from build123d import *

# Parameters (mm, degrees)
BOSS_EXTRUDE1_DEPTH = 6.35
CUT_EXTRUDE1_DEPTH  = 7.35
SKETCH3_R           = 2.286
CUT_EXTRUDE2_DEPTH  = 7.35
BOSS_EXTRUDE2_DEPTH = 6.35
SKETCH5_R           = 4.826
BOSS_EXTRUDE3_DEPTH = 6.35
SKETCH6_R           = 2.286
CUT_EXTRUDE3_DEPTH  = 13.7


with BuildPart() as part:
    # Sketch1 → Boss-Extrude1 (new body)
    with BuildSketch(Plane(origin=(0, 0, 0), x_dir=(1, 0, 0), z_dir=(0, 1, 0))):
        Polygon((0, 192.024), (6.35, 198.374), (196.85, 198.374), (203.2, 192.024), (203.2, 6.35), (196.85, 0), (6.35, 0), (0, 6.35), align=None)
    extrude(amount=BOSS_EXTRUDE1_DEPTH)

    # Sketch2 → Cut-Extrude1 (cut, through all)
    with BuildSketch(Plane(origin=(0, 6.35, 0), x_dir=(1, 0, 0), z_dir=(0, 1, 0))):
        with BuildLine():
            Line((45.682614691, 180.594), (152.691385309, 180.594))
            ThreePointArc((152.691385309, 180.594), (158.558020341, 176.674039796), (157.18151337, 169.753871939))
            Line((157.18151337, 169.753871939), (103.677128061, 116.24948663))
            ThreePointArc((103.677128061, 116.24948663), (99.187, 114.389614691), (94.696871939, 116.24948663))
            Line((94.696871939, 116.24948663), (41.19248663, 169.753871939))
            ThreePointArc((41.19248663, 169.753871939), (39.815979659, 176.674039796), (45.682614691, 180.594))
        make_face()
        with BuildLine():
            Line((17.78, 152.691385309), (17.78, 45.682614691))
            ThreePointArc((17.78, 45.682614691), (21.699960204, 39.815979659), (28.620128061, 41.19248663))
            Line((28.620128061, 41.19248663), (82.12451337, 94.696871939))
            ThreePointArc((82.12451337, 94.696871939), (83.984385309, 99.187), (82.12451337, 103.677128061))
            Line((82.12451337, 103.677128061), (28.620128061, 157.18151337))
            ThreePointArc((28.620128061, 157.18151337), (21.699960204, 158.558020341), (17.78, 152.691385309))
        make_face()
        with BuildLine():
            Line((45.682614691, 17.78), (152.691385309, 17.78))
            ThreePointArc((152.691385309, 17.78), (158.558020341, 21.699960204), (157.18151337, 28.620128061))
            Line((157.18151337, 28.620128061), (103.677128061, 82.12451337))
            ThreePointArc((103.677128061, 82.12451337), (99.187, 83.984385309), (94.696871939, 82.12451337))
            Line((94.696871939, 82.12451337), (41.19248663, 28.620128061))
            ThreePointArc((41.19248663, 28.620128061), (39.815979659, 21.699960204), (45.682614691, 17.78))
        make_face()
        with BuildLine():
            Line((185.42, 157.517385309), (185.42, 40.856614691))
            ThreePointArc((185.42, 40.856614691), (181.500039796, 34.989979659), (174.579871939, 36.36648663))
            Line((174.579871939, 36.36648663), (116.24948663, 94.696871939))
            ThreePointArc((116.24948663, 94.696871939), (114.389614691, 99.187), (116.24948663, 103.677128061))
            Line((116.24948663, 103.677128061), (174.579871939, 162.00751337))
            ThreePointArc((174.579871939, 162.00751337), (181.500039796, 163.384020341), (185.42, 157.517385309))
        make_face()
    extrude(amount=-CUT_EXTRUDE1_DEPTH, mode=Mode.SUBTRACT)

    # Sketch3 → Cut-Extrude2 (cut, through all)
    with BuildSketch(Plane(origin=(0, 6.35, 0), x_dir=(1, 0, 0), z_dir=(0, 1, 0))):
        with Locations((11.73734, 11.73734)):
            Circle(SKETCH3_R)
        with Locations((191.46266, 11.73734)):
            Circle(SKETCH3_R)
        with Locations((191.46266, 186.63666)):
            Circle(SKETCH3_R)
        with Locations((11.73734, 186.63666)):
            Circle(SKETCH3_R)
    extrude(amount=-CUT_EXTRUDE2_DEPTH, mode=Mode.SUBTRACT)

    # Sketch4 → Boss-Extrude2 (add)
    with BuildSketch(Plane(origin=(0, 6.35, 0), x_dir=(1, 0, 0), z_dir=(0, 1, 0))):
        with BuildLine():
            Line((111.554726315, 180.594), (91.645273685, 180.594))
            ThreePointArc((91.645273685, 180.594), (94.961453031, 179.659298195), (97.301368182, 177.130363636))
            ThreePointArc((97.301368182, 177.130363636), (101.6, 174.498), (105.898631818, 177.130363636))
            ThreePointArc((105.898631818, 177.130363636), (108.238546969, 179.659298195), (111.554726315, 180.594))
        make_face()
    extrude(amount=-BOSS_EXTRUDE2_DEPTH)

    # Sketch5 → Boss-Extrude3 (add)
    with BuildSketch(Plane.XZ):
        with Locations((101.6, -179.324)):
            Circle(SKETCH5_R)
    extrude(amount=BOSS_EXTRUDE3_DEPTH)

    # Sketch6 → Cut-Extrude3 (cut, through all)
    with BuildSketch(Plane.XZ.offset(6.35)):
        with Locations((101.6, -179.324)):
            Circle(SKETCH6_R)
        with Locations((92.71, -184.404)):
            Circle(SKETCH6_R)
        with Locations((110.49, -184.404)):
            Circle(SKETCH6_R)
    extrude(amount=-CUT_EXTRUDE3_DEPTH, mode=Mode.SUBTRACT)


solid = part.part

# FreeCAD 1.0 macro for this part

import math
import FreeCAD as App
import Part
import Sketcher

V = App.Vector
Q = App.Units.Quantity


def add_polygon(sketch, points):
    """Adds a closed chain of lines whose ends are joined by coincident constraints."""
    first, n = sketch.GeometryCount, len(points)
    for a, b in zip(points, points[1:] + points[:1]):
        sketch.addGeometry(Part.LineSegment(App.Vector(*a, 0), App.Vector(*b, 0)), False)
    for i in range(n):
        sketch.addConstraint(Sketcher.Constraint("Coincident", first + i, 2, first + (i + 1) % n, 1))

doc = App.newDocument("Part")
body = doc.addObject("PartDesign::Body", "Body")

# Sketch on XZ plane
sketch1 = body.newObject("Sketcher::SketchObject", "Sketch")
sketch1.AttachmentSupport = (doc.getObject("XZ_Plane"), [""])
sketch1.MapMode = "FlatFace"
add_polygon(sketch1, [(6, -198), (0, -192), (0, -6), (6, 0), (197, 0), (203, -6), (203, -192), (197, -198)])  # lines 0-7
sketch1.addConstraint(Sketcher.Constraint("Vertical", 1))
sketch1.addConstraint(Sketcher.Constraint("Horizontal", 3))
sketch1.addConstraint(Sketcher.Constraint("Vertical", 5))
sketch1.addConstraint(Sketcher.Constraint("Horizontal", 7))
sketch1.addConstraint(Sketcher.Constraint("PointOnObject", 0, 2, -2))
sketch1.addConstraint(Sketcher.Constraint("PointOnObject", 2, 2, -1))
sketch1.addConstraint(Sketcher.Constraint("Perpendicular", 0, 2))
sketch1.addConstraint(Sketcher.Constraint("Perpendicular", 2, 4))
sketch1.addConstraint(Sketcher.Constraint("Perpendicular", 4, 6))
sketch1.addConstraint(Sketcher.Constraint("Horizontal", 1, 2, 4, 2))
sketch1.addConstraint(Sketcher.Constraint("Horizontal", 0, 2, 5, 2))
sketch1.addConstraint(Sketcher.Constraint("Vertical", 3, 2, 6, 2))
sketch1.addConstraint(Sketcher.Constraint("Vertical", 2, 2, 7, 2))
sketch1.addConstraint(Sketcher.Constraint("DistanceX", 3, 1, 3, 2, Q("7.5 in")))
sketch1.addConstraint(Sketcher.Constraint("DistanceX", -1, 1, 4, 2, Q("8 in")))
sketch1.addConstraint(Sketcher.Constraint("DistanceY", 1, 1, 1, 2, Q("7.31 in")))
pad1 = body.newObject("PartDesign::Pad", "Pad")
pad1.Profile = sketch1
pad1.Length = Q("0.25 in")
pad1.Reversed = True

# Sketch on XZ plane
sketch2 = body.newObject("Sketcher::SketchObject", "Sketch001")
sketch2.AttachmentSupport = (doc.getObject("XZ_Plane"), [""])
sketch2.MapMode = "FlatFace"
sketch2.AttachmentOffset = App.Placement(V(0, 0, -0.25 * 25.4), App.Rotation())
sketch2.addGeometry(Part.LineSegment(V(153, -181, 0), V(46, -181, 0)), False)
sketch2.addGeometry(Part.ArcOfCircle(Part.Circle(V(46, -174, 0), V(0, 0, 1), 6), math.radians(135), math.radians(270)), False)
sketch2.addGeometry(Part.LineSegment(V(41, -170, 0), V(95, -116, 0)), False)
sketch2.addGeometry(Part.ArcOfCircle(Part.Circle(V(99, -121, 0), V(0, 0, 1), 6), math.radians(45), math.radians(135)), False)
sketch2.addGeometry(Part.LineSegment(V(104, -116, 0), V(157, -170, 0)), False)
sketch2.addGeometry(Part.ArcOfCircle(Part.Circle(V(153, -174, 0), V(0, 0, 1), 6), math.radians(-90), math.radians(45)), False)
sketch2.addGeometry(Part.LineSegment(V(18, -153, 0), V(18, -46, 0)), False)
sketch2.addGeometry(Part.ArcOfCircle(Part.Circle(V(24, -46, 0), V(0, 0, 1), 6), math.radians(45), math.radians(180)), False)
sketch2.addGeometry(Part.LineSegment(V(29, -41, 0), V(82, -95, 0)), False)
sketch2.addGeometry(Part.ArcOfCircle(Part.Circle(V(78, -99, 0), V(0, 0, 1), 6), math.radians(-45), math.radians(45)), False)
sketch2.addGeometry(Part.LineSegment(V(82, -104, 0), V(29, -157, 0)), False)
sketch2.addGeometry(Part.ArcOfCircle(Part.Circle(V(24, -153, 0), V(0, 0, 1), 6), math.radians(180), math.radians(315)), False)
sketch2.addGeometry(Part.LineSegment(V(46, -18, 0), V(153, -18, 0)), False)
sketch2.addGeometry(Part.ArcOfCircle(Part.Circle(V(153, -24, 0), V(0, 0, 1), 6), math.radians(-45), math.radians(90)), False)
sketch2.addGeometry(Part.LineSegment(V(157, -29, 0), V(104, -82, 0)), False)
sketch2.addGeometry(Part.ArcOfCircle(Part.Circle(V(99, -78, 0), V(0, 0, 1), 6), math.radians(-135), math.radians(-45)), False)
sketch2.addGeometry(Part.LineSegment(V(95, -82, 0), V(41, -29, 0)), False)
sketch2.addGeometry(Part.ArcOfCircle(Part.Circle(V(46, -24, 0), V(0, 0, 1), 6), math.radians(90), math.radians(225)), False)
sketch2.addGeometry(Part.LineSegment(V(185, -41, 0), V(185, -158, 0)), False)
sketch2.addGeometry(Part.ArcOfCircle(Part.Circle(V(179, -158, 0), V(0, 0, 1), 6), math.radians(-135), math.radians(0)), False)
sketch2.addGeometry(Part.LineSegment(V(175, -162, 0), V(116, -104, 0)), False)
sketch2.addGeometry(Part.ArcOfCircle(Part.Circle(V(121, -99, 0), V(0, 0, 1), 6), math.radians(135), math.radians(225)), False)
sketch2.addGeometry(Part.LineSegment(V(116, -95, 0), V(175, -36, 0)), False)
sketch2.addGeometry(Part.ArcOfCircle(Part.Circle(V(179, -41, 0), V(0, 0, 1), 6), math.radians(0), math.radians(135)), False)
sketch2.addConstraint(Sketcher.Constraint("Tangent", 0, 2, 1, 2))
sketch2.addConstraint(Sketcher.Constraint("Tangent", 1, 1, 2, 1))
sketch2.addConstraint(Sketcher.Constraint("Tangent", 2, 2, 3, 2))
sketch2.addConstraint(Sketcher.Constraint("Tangent", 3, 1, 4, 1))
sketch2.addConstraint(Sketcher.Constraint("Tangent", 4, 2, 5, 2))
sketch2.addConstraint(Sketcher.Constraint("Tangent", 5, 1, 0, 1))
sketch2.addConstraint(Sketcher.Constraint("Tangent", 6, 2, 7, 2))
sketch2.addConstraint(Sketcher.Constraint("Tangent", 7, 1, 8, 1))
sketch2.addConstraint(Sketcher.Constraint("Tangent", 8, 2, 9, 2))
sketch2.addConstraint(Sketcher.Constraint("Tangent", 9, 1, 10, 1))
sketch2.addConstraint(Sketcher.Constraint("Tangent", 10, 2, 11, 2))
sketch2.addConstraint(Sketcher.Constraint("Tangent", 11, 1, 6, 1))
sketch2.addConstraint(Sketcher.Constraint("Tangent", 12, 2, 13, 2))
sketch2.addConstraint(Sketcher.Constraint("Tangent", 13, 1, 14, 1))
sketch2.addConstraint(Sketcher.Constraint("Tangent", 14, 2, 15, 2))
sketch2.addConstraint(Sketcher.Constraint("Tangent", 15, 1, 16, 1))
sketch2.addConstraint(Sketcher.Constraint("Tangent", 16, 2, 17, 2))
sketch2.addConstraint(Sketcher.Constraint("Tangent", 17, 1, 12, 1))
sketch2.addConstraint(Sketcher.Constraint("Tangent", 18, 2, 19, 2))
sketch2.addConstraint(Sketcher.Constraint("Tangent", 19, 1, 20, 1))
sketch2.addConstraint(Sketcher.Constraint("Tangent", 20, 2, 21, 2))
sketch2.addConstraint(Sketcher.Constraint("Tangent", 21, 1, 22, 1))
sketch2.addConstraint(Sketcher.Constraint("Tangent", 22, 2, 23, 2))
sketch2.addConstraint(Sketcher.Constraint("Tangent", 23, 1, 18, 1))
sketch2.addConstraint(Sketcher.Constraint("Horizontal", 0))
sketch2.addConstraint(Sketcher.Constraint("Vertical", 6))
sketch2.addConstraint(Sketcher.Constraint("Horizontal", 12))
sketch2.addConstraint(Sketcher.Constraint("Vertical", 18))
sketch2.addConstraint(Sketcher.Constraint("Equal", 1, 3))
sketch2.addConstraint(Sketcher.Constraint("Equal", 3, 5))
sketch2.addConstraint(Sketcher.Constraint("Equal", 5, 7))
sketch2.addConstraint(Sketcher.Constraint("Equal", 7, 9))
sketch2.addConstraint(Sketcher.Constraint("Equal", 9, 11))
sketch2.addConstraint(Sketcher.Constraint("Equal", 11, 13))
sketch2.addConstraint(Sketcher.Constraint("Equal", 13, 15))
sketch2.addConstraint(Sketcher.Constraint("Equal", 15, 17))
sketch2.addConstraint(Sketcher.Constraint("Equal", 17, 19))
sketch2.addConstraint(Sketcher.Constraint("Equal", 19, 21))
sketch2.addConstraint(Sketcher.Constraint("Equal", 21, 23))
sketch2.addConstraint(Sketcher.Constraint("Perpendicular", 2, 4))
sketch2.addConstraint(Sketcher.Constraint("Parallel", 4, 8))
sketch2.addConstraint(Sketcher.Constraint("Perpendicular", 8, 10))
sketch2.addConstraint(Sketcher.Constraint("Parallel", 10, 14))
sketch2.addConstraint(Sketcher.Constraint("Perpendicular", 14, 16))
sketch2.addConstraint(Sketcher.Constraint("Parallel", 16, 20))
sketch2.addConstraint(Sketcher.Constraint("Perpendicular", 20, 22))
sketch2.addConstraint(Sketcher.Constraint("Horizontal", 9, 3, 21, 3))
sketch2.addConstraint(Sketcher.Constraint("Horizontal", 2, 2, 3, 1))
sketch2.addConstraint(Sketcher.Constraint("Vertical", 5, 3, 13, 3))
sketch2.addConstraint(Sketcher.Constraint("Vertical", 3, 3, 15, 3))
sketch2.addConstraint(Sketcher.Constraint("Equal", 12, 6))
sketch2.addConstraint(Sketcher.Constraint("Radius", 1, Q("0.25 in")))
sketch2.addConstraint(Sketcher.Constraint("DistanceX", -1, 1, 6, 2, Q("0.7 in")))
sketch2.addConstraint(Sketcher.Constraint("DistanceY", 12, 2, -1, 1, Q("0.7 in")))
sketch2.addConstraint(Sketcher.Constraint("DistanceX", -1, 1, 18, 2, Q("7.3 in")))
sketch2.addConstraint(Sketcher.Constraint("DistanceY", 1, 3, -1, 1, Q("6.86 in")))
sketch2.addConstraint(Sketcher.Constraint("DistanceX", -1, 1, 3, 3, Q("3.905 in")))
sketch2.addConstraint(Sketcher.Constraint("DistanceY", 9, 3, -1, 1, Q("3.905 in")))
sketch2.addConstraint(Sketcher.Constraint("DistanceY", 19, 3, 15, 3, Q("3.145 in")))
sketch2.addConstraint(Sketcher.Constraint("DistanceX", 0, 2, 0, 1, Q("107.008771 mm")))
pocket1 = body.newObject("PartDesign::Pocket", "Pocket")
pocket1.Profile = sketch2
pocket1.Type = "ThroughAll"
pocket1.Reversed = True

# Sketch on XZ plane
sketch3 = body.newObject("Sketcher::SketchObject", "Sketch002")
sketch3.AttachmentSupport = (doc.getObject("XZ_Plane"), [""])
sketch3.MapMode = "FlatFace"
sketch3.AttachmentOffset = App.Placement(V(0, 0, -0.25 * 25.4), App.Rotation())
sketch3.addGeometry(Part.Circle(V(11.7, -11.7, 0), V(0, 0, 1), 2.3), False)
sketch3.addGeometry(Part.Circle(V(191.5, -11.7, 0), V(0, 0, 1), 2.3), False)
sketch3.addGeometry(Part.Circle(V(191.5, -186.6, 0), V(0, 0, 1), 2.3), False)
sketch3.addGeometry(Part.Circle(V(11.7, -186.6, 0), V(0, 0, 1), 2.3), False)
sketch3.addConstraint(Sketcher.Constraint("Equal", 0, 1))
sketch3.addConstraint(Sketcher.Constraint("Equal", 1, 2))
sketch3.addConstraint(Sketcher.Constraint("Equal", 2, 3))
sketch3.addConstraint(Sketcher.Constraint("Horizontal", 0, 3, 1, 3))
sketch3.addConstraint(Sketcher.Constraint("Horizontal", 2, 3, 3, 3))
sketch3.addConstraint(Sketcher.Constraint("Vertical", 1, 3, 2, 3))
sketch3.addConstraint(Sketcher.Constraint("Vertical", 0, 3, 3, 3))
sketch3.addConstraint(Sketcher.Constraint("Diameter", 0, Q("0.18 in")))
sketch3.addConstraint(Sketcher.Constraint("DistanceX", -1, 1, 0, 3, Q("0.4621 in")))
sketch3.addConstraint(Sketcher.Constraint("DistanceY", 0, 3, -1, 1, Q("0.4621 in")))
sketch3.addConstraint(Sketcher.Constraint("DistanceX", -1, 1, 1, 3, Q("7.5379 in")))
sketch3.addConstraint(Sketcher.Constraint("DistanceY", 2, 3, -1, 1, Q("7.3479 in")))
pocket2 = body.newObject("PartDesign::Pocket", "Pocket001")
pocket2.Profile = sketch3
pocket2.Type = "ThroughAll"
pocket2.Reversed = True

# Sketch on XZ plane
sketch4 = body.newObject("Sketcher::SketchObject", "Sketch003")
sketch4.AttachmentSupport = (doc.getObject("XZ_Plane"), [""])
sketch4.MapMode = "FlatFace"
sketch4.AttachmentOffset = App.Placement(V(0, 0, -0.25 * 25.4), App.Rotation())
sketch4.addGeometry(Part.LineSegment(V(111.6, -180.6, 0), V(91.6, -180.6, 0)), False)
sketch4.addGeometry(Part.ArcOfCircle(Part.Circle(V(91.6, -174.2, 0), V(0, 0, 1), 6.4), math.radians(-90), math.radians(-27)), False)
sketch4.addGeometry(Part.ArcOfCircle(Part.Circle(V(101.6, -179.3, 0), V(0, 0, 1), 4.8), math.radians(27), math.radians(153)), False)
sketch4.addGeometry(Part.ArcOfCircle(Part.Circle(V(111.6, -174.2, 0), V(0, 0, 1), 6.4), math.radians(-153), math.radians(-90)), False)
sketch4.addConstraint(Sketcher.Constraint("Tangent", 0, 2, 1, 1))
sketch4.addConstraint(Sketcher.Constraint("Tangent", 1, 2, 2, 2))
sketch4.addConstraint(Sketcher.Constraint("Tangent", 2, 1, 3, 1))
sketch4.addConstraint(Sketcher.Constraint("Tangent", 3, 2, 0, 1))
sketch4.addConstraint(Sketcher.Constraint("Horizontal", 0))
sketch4.addConstraint(Sketcher.Constraint("Equal", 1, 3))
sketch4.addConstraint(Sketcher.Constraint("Radius", 1, Q("0.25 in")))
sketch4.addConstraint(Sketcher.Constraint("Radius", 2, Q("0.19 in")))
sketch4.addConstraint(Sketcher.Constraint("DistanceX", -1, 1, 2, 3, Q("4 in")))
sketch4.addConstraint(Sketcher.Constraint("DistanceY", 2, 3, 1, 3, Q("0.2 in")))
sketch4.addConstraint(Sketcher.Constraint("DistanceY", 1, 3, -1, 1, Q("6.86 in")))
pad2 = body.newObject("PartDesign::Pad", "Pad001")
pad2.Profile = sketch4
pad2.Length = Q("0.25 in")

# Sketch on XZ plane
sketch5 = body.newObject("Sketcher::SketchObject", "Sketch004")
sketch5.AttachmentSupport = (doc.getObject("XZ_Plane"), [""])
sketch5.MapMode = "FlatFace"
sketch5.addGeometry(Part.Circle(V(101.6, -179.3, 0), V(0, 0, 1), 4.8), False)
sketch5.addConstraint(Sketcher.Constraint("Diameter", 0, Q("0.38 in")))
sketch5.addConstraint(Sketcher.Constraint("DistanceX", -1, 1, 0, 3, Q("4 in")))
sketch5.addConstraint(Sketcher.Constraint("DistanceY", 0, 3, -1, 1, Q("7.06 in")))
pad3 = body.newObject("PartDesign::Pad", "Pad002")
pad3.Profile = sketch5
pad3.Length = Q("0.25 in")

# Sketch on XZ plane
sketch6 = body.newObject("Sketcher::SketchObject", "Sketch005")
sketch6.AttachmentSupport = (doc.getObject("XZ_Plane"), [""])
sketch6.MapMode = "FlatFace"
sketch6.AttachmentOffset = App.Placement(V(0, 0, 0.25 * 25.4), App.Rotation())
sketch6.addGeometry(Part.Circle(V(101.6, -179.3, 0), V(0, 0, 1), 2.3), False)
sketch6.addGeometry(Part.Circle(V(92.7, -184.4, 0), V(0, 0, 1), 2.3), False)
sketch6.addGeometry(Part.Circle(V(110.5, -184.4, 0), V(0, 0, 1), 2.3), False)
sketch6.addConstraint(Sketcher.Constraint("Equal", 0, 1))
sketch6.addConstraint(Sketcher.Constraint("Equal", 1, 2))
sketch6.addConstraint(Sketcher.Constraint("Horizontal", 1, 3, 2, 3))
sketch6.addConstraint(Sketcher.Constraint("Diameter", 0, Q("0.18 in")))
sketch6.addConstraint(Sketcher.Constraint("DistanceX", -1, 1, 0, 3, Q("4 in")))
sketch6.addConstraint(Sketcher.Constraint("DistanceY", 1, 3, 0, 3, Q("0.2 in")))
sketch6.addConstraint(Sketcher.Constraint("DistanceX", 1, 3, 2, 3, Q("0.7 in")))
sketch6.addConstraint(Sketcher.Constraint("DistanceY", 0, 3, -1, 1, Q("7.06 in")))
sketch6.addConstraint(Sketcher.Constraint("DistanceX", -1, 1, 1, 3, Q("3.65 in")))
pocket3 = body.newObject("PartDesign::Pocket", "Pocket002")
pocket3.Profile = sketch6
pocket3.Type = "ThroughAll"

doc.recompute()
